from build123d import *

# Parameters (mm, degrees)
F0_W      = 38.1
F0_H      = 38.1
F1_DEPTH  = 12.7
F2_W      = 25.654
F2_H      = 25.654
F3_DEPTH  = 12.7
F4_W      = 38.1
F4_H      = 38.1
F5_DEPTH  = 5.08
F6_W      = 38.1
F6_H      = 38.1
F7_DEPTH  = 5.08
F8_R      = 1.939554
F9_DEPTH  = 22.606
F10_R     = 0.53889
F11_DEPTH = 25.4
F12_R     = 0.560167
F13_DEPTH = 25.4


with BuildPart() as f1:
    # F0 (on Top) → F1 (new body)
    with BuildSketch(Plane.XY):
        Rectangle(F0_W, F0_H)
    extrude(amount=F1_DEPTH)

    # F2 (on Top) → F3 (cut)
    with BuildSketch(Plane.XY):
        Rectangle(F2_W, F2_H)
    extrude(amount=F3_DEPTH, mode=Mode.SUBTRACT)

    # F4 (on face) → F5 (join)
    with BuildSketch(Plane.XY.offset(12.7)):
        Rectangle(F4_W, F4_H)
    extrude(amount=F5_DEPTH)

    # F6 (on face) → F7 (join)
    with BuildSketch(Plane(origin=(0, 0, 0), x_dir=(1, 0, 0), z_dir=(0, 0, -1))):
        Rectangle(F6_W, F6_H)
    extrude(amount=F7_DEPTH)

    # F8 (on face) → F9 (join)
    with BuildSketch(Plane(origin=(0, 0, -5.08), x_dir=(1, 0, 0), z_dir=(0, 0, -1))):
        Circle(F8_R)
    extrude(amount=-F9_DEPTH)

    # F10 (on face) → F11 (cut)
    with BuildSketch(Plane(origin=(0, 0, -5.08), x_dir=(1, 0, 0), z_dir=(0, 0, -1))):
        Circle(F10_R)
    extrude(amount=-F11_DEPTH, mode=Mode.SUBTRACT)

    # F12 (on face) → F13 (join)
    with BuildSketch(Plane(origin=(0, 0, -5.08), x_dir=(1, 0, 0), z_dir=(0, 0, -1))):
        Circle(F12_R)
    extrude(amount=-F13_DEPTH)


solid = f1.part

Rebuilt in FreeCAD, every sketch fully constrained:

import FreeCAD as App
import Part
import Sketcher

V = App.Vector
Q = App.Units.Quantity

doc = App.newDocument("Part")
body = doc.addObject("PartDesign::Body", "Body")

# Sketch on XY plane
sketch1 = body.newObject("Sketcher::SketchObject", "Sketch")
sketch1.AttachmentSupport = (doc.getObject("XY_Plane"), [""])
sketch1.MapMode = "FlatFace"
sketch1.addGeometry([
    Part.LineSegment(V(-19.05, 19.05, 0), V(-19.05, -19.05, 0)),
    Part.LineSegment(V(-19.05, -19.05, 0), V(19.05, -19.05, 0)),
    Part.LineSegment(V(19.05, -19.05, 0), V(19.05, 19.05, 0)),
    Part.LineSegment(V(19.05, 19.05, 0), V(-19.05, 19.05, 0)),
], False)
sketch1.addConstraint([
    Sketcher.Constraint("Coincident", 0, 2, 1, 1),
    Sketcher.Constraint("Coincident", 1, 2, 2, 1),
    Sketcher.Constraint("Coincident", 2, 2, 3, 1),
    Sketcher.Constraint("Coincident", 3, 2, 0, 1),
    Sketcher.Constraint("Vertical", 0),
    Sketcher.Constraint("Horizontal", 1),
    Sketcher.Constraint("Vertical", 2),
    Sketcher.Constraint("Horizontal", 3),
    Sketcher.Constraint("Symmetric", 0, 2, 2, 2, -1, 1),
    Sketcher.Constraint("Equal", 3, 0),
    Sketcher.Constraint("DistanceX", 1, 1, 1, 2, Q("1.5 in")),
])
pad1 = body.newObject("PartDesign::Pad", "Pad")
pad1.Profile = sketch1
pad1.Length = Q("0.5 in")

# Sketch on XY plane
sketch2 = body.newObject("Sketcher::SketchObject", "Sketch001")
sketch2.AttachmentSupport = (doc.getObject("XY_Plane"), [""])
sketch2.MapMode = "FlatFace"
sketch2.addGeometry([
    Part.LineSegment(V(-12.827, 12.827, 0), V(-12.827, -12.827, 0)),
    Part.LineSegment(V(-12.827, -12.827, 0), V(12.827, -12.827, 0)),
    Part.LineSegment(V(12.827, -12.827, 0), V(12.827, 12.827, 0)),
    Part.LineSegment(V(12.827, 12.827, 0), V(-12.827, 12.827, 0)),
], False)
sketch2.addConstraint([
    Sketcher.Constraint("Coincident", 0, 2, 1, 1),
    Sketcher.Constraint("Coincident", 1, 2, 2, 1),
    Sketcher.Constraint("Coincident", 2, 2, 3, 1),
    Sketcher.Constraint("Coincident", 3, 2, 0, 1),
    Sketcher.Constraint("Vertical", 0),
    Sketcher.Constraint("Horizontal", 1),
    Sketcher.Constraint("Vertical", 2),
    Sketcher.Constraint("Horizontal", 3),
    Sketcher.Constraint("Symmetric", 0, 2, 2, 2, -1, 1),
    Sketcher.Constraint("Equal", 3, 0),
    Sketcher.Constraint("DistanceX", 1, 1, 1, 2, Q("1.01 in")),
])
pocket1 = body.newObject("PartDesign::Pocket", "Pocket")
pocket1.Profile = sketch2
pocket1.Length = Q("0.5 in")
pocket1.Reversed = True

# Sketch on XY plane
sketch3 = body.newObject("Sketcher::SketchObject", "Sketch002")
sketch3.AttachmentSupport = (doc.getObject("XY_Plane"), [""])
sketch3.MapMode = "FlatFace"
sketch3.AttachmentOffset = App.Placement(V(0, 0, 0.5 * 25.4), App.Rotation())
sketch3.addGeometry([
    Part.LineSegment(V(-19.05, 19.05, 0), V(-19.05, -19.05, 0)),
    Part.LineSegment(V(-19.05, -19.05, 0), V(19.05, -19.05, 0)),
    Part.LineSegment(V(19.05, -19.05, 0), V(19.05, 19.05, 0)),
    Part.LineSegment(V(19.05, 19.05, 0), V(-19.05, 19.05, 0)),
], False)
sketch3.addConstraint([
    Sketcher.Constraint("Coincident", 0, 2, 1, 1),
    Sketcher.Constraint("Coincident", 1, 2, 2, 1),
    Sketcher.Constraint("Coincident", 2, 2, 3, 1),
    Sketcher.Constraint("Coincident", 3, 2, 0, 1),
    Sketcher.Constraint("Vertical", 0),
    Sketcher.Constraint("Horizontal", 1),
    Sketcher.Constraint("Vertical", 2),
    Sketcher.Constraint("Horizontal", 3),
    Sketcher.Constraint("Symmetric", 0, 2, 2, 2, -1, 1),
    Sketcher.Constraint("Equal", 3, 0),
    Sketcher.Constraint("DistanceX", 1, 1, 1, 2, Q("1.5 in")),
])
pad2 = body.newObject("PartDesign::Pad", "Pad001")
pad2.Profile = sketch3
pad2.Length = Q("0.2 in")

# Sketch on XY plane
sketch4 = body.newObject("Sketcher::SketchObject", "Sketch003")
sketch4.AttachmentSupport = (doc.getObject("XY_Plane"), [""])
sketch4.MapMode = "FlatFace"
sketch4.addGeometry([
    Part.LineSegment(V(-19.05, -19.05, 0), V(-19.05, 19.05, 0)),
    Part.LineSegment(V(-19.05, 19.05, 0), V(19.05, 19.05, 0)),
    Part.LineSegment(V(19.05, 19.05, 0), V(19.05, -19.05, 0)),
    Part.LineSegment(V(19.05, -19.05, 0), V(-19.05, -19.05, 0)),
], False)
sketch4.addConstraint([
    Sketcher.Constraint("Coincident", 0, 2, 1, 1),
    Sketcher.Constraint("Coincident", 1, 2, 2, 1),
    Sketcher.Constraint("Coincident", 2, 2, 3, 1),
    Sketcher.Constraint("Coincident", 3, 2, 0, 1),
    Sketcher.Constraint("Vertical", 0),
    Sketcher.Constraint("Horizontal", 1),
    Sketcher.Constraint("Vertical", 2),
    Sketcher.Constraint("Horizontal", 3),
    Sketcher.Constraint("Symmetric", 0, 2, 2, 2, -1, 1),
    Sketcher.Constraint("Equal", 3, 0),
    Sketcher.Constraint("DistanceX", 1, 1, 1, 2, Q("1.5 in")),
])
pad3 = body.newObject("PartDesign::Pad", "Pad002")
pad3.Profile = sketch4
pad3.Length = Q("0.2 in")
pad3.Reversed = True

# Sketch on XY plane
sketch5 = body.newObject("Sketcher::SketchObject", "Sketch004")
sketch5.AttachmentSupport = (doc.getObject("XY_Plane"), [""])
sketch5.MapMode = "FlatFace"
sketch5.AttachmentOffset = App.Placement(V(0, 0, -0.2 * 25.4), App.Rotation())
sketch5.addGeometry(Part.Circle(V(0, 0, 0), V(0, 0, 1), 1.939554), False)
sketch5.addConstraint([
    Sketcher.Constraint("Coincident", 0, 3, -1, 1),
    Sketcher.Constraint("Diameter", 0, 3.879108),
])
pad4 = body.newObject("PartDesign::Pad", "Pad003")
pad4.Profile = sketch5
pad4.Length = Q("0.89 in")

# Sketch on XY plane
sketch6 = body.newObject("Sketcher::SketchObject", "Sketch005")
sketch6.AttachmentSupport = (doc.getObject("XY_Plane"), [""])
sketch6.MapMode = "FlatFace"
sketch6.AttachmentOffset = App.Placement(V(0, 0, -0.2 * 25.4), App.Rotation())
sketch6.addGeometry(Part.Circle(V(0, 0, 0), V(0, 0, 1), 0.53889), False)
sketch6.addConstraint([
    Sketcher.Constraint("Coincident", 0, 3, -1, 1),
    Sketcher.Constraint("Diameter", 0, 1.07778),
])
pocket2 = body.newObject("PartDesign::Pocket", "Pocket001")
pocket2.Profile = sketch6
pocket2.Length = Q("1 in")
pocket2.Reversed = True

# Sketch on XY plane
sketch7 = body.newObject("Sketcher::SketchObject", "Sketch006")
sketch7.AttachmentSupport = (doc.getObject("XY_Plane"), [""])
sketch7.MapMode = "FlatFace"
sketch7.AttachmentOffset = App.Placement(V(0, 0, -0.2 * 25.4), App.Rotation())
sketch7.addGeometry(Part.Circle(V(0, 0, 0), V(0, 0, 1), 0.560167), False)
sketch7.addConstraint([
    Sketcher.Constraint("Coincident", 0, 3, -1, 1),
    Sketcher.Constraint("Diameter", 0, 1.120334),
])
pad5 = body.newObject("PartDesign::Pad", "Pad004")
pad5.Profile = sketch7
pad5.Length = Q("1 in")

doc.recompute()
